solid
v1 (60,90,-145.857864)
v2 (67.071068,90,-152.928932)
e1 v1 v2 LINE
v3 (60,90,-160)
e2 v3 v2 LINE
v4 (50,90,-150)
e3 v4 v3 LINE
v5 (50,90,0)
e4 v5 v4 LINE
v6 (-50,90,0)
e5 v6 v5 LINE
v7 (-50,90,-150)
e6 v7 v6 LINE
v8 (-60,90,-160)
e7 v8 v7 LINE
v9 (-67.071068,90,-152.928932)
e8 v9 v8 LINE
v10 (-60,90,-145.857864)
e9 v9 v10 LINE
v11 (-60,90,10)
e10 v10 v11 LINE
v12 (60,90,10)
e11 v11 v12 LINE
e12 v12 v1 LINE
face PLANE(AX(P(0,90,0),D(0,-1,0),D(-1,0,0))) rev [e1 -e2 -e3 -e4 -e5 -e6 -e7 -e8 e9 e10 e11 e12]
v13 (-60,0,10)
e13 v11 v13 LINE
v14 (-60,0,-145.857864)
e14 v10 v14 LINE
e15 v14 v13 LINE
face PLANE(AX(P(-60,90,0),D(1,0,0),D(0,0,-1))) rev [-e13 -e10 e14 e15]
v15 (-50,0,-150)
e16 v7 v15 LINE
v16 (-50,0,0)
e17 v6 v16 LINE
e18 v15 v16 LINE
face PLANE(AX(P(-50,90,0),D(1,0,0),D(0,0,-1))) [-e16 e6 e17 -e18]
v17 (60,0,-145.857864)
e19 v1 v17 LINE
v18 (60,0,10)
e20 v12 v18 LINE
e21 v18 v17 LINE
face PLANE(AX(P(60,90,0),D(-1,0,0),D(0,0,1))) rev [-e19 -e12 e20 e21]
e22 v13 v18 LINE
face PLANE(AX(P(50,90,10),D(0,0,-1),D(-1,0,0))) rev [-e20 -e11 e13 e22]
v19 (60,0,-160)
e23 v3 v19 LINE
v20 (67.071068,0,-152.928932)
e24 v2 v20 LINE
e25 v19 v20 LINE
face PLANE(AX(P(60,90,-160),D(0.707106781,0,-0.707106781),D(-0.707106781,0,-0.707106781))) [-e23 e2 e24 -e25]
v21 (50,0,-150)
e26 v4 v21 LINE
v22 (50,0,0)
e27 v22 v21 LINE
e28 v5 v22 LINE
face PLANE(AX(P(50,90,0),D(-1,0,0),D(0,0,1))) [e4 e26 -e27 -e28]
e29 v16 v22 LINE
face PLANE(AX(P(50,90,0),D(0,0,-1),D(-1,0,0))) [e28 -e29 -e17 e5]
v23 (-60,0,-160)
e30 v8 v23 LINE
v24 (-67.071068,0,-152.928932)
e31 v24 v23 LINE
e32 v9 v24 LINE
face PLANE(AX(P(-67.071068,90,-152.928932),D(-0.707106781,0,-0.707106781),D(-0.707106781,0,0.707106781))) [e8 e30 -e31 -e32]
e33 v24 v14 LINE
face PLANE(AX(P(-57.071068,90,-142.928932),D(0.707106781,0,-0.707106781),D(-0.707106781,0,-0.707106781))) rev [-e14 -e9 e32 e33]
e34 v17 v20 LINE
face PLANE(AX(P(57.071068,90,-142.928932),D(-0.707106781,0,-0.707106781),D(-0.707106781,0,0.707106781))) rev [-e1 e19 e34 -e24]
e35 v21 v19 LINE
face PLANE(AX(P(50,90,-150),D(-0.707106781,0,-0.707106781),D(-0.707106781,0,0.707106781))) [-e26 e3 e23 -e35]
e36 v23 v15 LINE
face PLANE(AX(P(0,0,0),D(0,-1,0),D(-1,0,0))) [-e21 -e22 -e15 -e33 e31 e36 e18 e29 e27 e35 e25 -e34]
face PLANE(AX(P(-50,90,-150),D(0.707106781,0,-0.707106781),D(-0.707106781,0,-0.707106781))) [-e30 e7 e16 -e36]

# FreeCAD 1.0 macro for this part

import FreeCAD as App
import Part
import Sketcher
Q = App.Units.Quantity

doc = App.newDocument("Part")
body = doc.addObject("PartDesign::Body", "Body")

# Sketch on XZ plane
sketch1 = doc.addObject("Sketcher::SketchObject", "Sketch")
body.addObject(sketch1)
sketch1.AttachmentSupport = (doc.XZ_Plane, [""])
sketch1.MapMode = "FlatFace"
sketch1.addGeometry([
    Part.LineSegment(App.Vector(60, -160, 0), App.Vector(50, -150, 0)),  # 0
    Part.LineSegment(App.Vector(50, -150, 0), App.Vector(50, 0, 0)),  # 1
    Part.LineSegment(App.Vector(50, 0, 0), App.Vector(-50, 0, 0)),  # 2
    Part.LineSegment(App.Vector(-50, 0, 0), App.Vector(-50, -150, 0)),  # 3
    Part.LineSegment(App.Vector(-50, -150, 0), App.Vector(-60, -160, 0)),  # 4
    Part.LineSegment(App.Vector(-60, -160, 0), App.Vector(-67, -153, 0)),  # 5
    Part.LineSegment(App.Vector(-67, -153, 0), App.Vector(-60, -146, 0)),  # 6
    Part.LineSegment(App.Vector(-60, -146, 0), App.Vector(-60, 10, 0)),  # 7
    Part.LineSegment(App.Vector(-60, 10, 0), App.Vector(60, 10, 0)),  # 8
    Part.LineSegment(App.Vector(60, 10, 0), App.Vector(60, -146, 0)),  # 9
    Part.LineSegment(App.Vector(60, -146, 0), App.Vector(67, -153, 0)),  # 10
    Part.LineSegment(App.Vector(67, -153, 0), App.Vector(60, -160, 0)),  # 11
], False)
sketch1.addConstraint([
    Sketcher.Constraint("Coincident", 0, 2, 1, 1),
    Sketcher.Constraint("Coincident", 1, 2, 2, 1),
    Sketcher.Constraint("Coincident", 2, 2, 3, 1),
    Sketcher.Constraint("Coincident", 3, 2, 4, 1),
    Sketcher.Constraint("Coincident", 4, 2, 5, 1),
    Sketcher.Constraint("Coincident", 5, 2, 6, 1),
    Sketcher.Constraint("Coincident", 6, 2, 7, 1),
    Sketcher.Constraint("Coincident", 7, 2, 8, 1),
    Sketcher.Constraint("Coincident", 8, 2, 9, 1),
    Sketcher.Constraint("Coincident", 9, 2, 10, 1),
    Sketcher.Constraint("Coincident", 10, 2, 11, 1),
    Sketcher.Constraint("Coincident", 11, 2, 0, 1),
    Sketcher.Constraint("Vertical", 1),
    Sketcher.Constraint("Horizontal", 2),
    Sketcher.Constraint("Vertical", 3),
    Sketcher.Constraint("Vertical", 7),
    Sketcher.Constraint("Horizontal", 8),
    Sketcher.Constraint("Vertical", 9),
    Sketcher.Constraint("Symmetric", 1, 2, 2, 2, -1, 1),
    Sketcher.Constraint("Symmetric", 6, 2, 9, 2, -2),
    Sketcher.Constraint("Symmetric", 5, 2, 10, 2, -2),
    Sketcher.Constraint("Symmetric", 4, 2, 11, 2, -2),
    Sketcher.Constraint("Perpendicular", 0, 4),
    Sketcher.Constraint("Perpendicular", 4, 5),
    Sketcher.Constraint("Perpendicular", 5, 6),
    Sketcher.Constraint("Perpendicular", 6, 10),
    Sketcher.Constraint("Vertical", 4, 2, 6, 2),
    Sketcher.Constraint("DistanceX", 2, 2, 2, 1, Q("100 mm")),
    Sketcher.Constraint("DistanceX", 8, 1, 8, 2, Q("120 mm")),
    Sketcher.Constraint("DistanceY", 1, 1, 1, 2, Q("150 mm")),
    Sketcher.Constraint("Distance", 5, Q("10 mm")),
    Sketcher.Constraint("DistanceY", -1, 1, 7, 2, Q("10 mm")),
])
pad1 = doc.addObject("PartDesign::Pad", "Pad")
body.addObject(pad1)
pad1.Profile = sketch1
pad1.Length = 90
pad1.Reversed = True

doc.recompute()
